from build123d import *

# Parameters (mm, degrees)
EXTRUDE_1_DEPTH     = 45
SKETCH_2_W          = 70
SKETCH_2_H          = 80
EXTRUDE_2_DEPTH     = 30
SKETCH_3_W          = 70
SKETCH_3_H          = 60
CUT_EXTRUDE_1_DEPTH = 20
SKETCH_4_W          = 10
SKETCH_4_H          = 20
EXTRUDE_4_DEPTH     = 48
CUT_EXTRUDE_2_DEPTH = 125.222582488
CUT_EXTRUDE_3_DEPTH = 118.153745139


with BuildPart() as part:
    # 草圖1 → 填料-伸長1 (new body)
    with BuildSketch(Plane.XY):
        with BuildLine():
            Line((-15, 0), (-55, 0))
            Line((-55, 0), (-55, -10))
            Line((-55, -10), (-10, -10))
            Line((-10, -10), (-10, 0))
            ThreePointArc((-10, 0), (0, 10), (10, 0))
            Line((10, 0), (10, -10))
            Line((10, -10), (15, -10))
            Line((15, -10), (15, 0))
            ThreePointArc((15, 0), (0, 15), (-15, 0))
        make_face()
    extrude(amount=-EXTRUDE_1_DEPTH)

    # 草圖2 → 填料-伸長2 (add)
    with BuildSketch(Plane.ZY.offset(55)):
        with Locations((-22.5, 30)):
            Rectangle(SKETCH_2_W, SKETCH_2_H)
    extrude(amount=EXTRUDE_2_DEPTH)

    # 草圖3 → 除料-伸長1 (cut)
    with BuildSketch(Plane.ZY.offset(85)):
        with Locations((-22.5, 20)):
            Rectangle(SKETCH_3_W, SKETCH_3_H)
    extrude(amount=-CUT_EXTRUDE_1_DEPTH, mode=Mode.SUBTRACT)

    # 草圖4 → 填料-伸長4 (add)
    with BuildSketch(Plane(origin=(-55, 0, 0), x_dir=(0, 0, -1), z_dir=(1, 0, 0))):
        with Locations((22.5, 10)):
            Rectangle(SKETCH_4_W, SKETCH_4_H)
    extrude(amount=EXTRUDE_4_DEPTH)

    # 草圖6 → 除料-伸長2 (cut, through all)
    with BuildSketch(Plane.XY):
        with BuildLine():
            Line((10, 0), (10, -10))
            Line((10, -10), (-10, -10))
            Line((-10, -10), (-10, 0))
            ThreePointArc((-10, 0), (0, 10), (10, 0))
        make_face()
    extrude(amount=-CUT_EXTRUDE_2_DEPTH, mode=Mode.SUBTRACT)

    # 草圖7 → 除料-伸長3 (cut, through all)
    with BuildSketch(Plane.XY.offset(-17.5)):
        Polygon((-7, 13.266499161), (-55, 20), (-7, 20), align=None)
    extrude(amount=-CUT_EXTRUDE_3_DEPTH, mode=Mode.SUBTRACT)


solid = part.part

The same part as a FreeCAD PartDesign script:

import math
import FreeCAD as App
import Part
import Sketcher
Q = App.Units.Quantity

doc = App.newDocument("Part")
body = doc.addObject("PartDesign::Body", "Body")

# Sketch on XY plane
sketch1 = body.newObject("Sketcher::SketchObject", "Sketch")
sketch1.AttachmentSupport = (doc.getObject("XY_Plane"), [""])
sketch1.MapMode = "FlatFace"
sketch1.addGeometry([
    Part.LineSegment(App.Vector(-15, 0, 0), App.Vector(-55, 0, 0)),  # 0
    Part.LineSegment(App.Vector(-55, 0, 0), App.Vector(-55, -10, 0)),  # 1
    Part.LineSegment(App.Vector(-55, -10, 0), App.Vector(-10, -10, 0)),  # 2
    Part.LineSegment(App.Vector(-10, -10, 0), App.Vector(-10, 0, 0)),  # 3
    Part.ArcOfCircle(Part.Circle(App.Vector(0, 0, 0), App.Vector(0, 0, 1), 10), math.radians(0), math.radians(180)),  # 4
    Part.LineSegment(App.Vector(10, 0, 0), App.Vector(10, -10, 0)),  # 5
    Part.LineSegment(App.Vector(10, -10, 0), App.Vector(15, -10, 0)),  # 6
    Part.LineSegment(App.Vector(15, -10, 0), App.Vector(15, 0, 0)),  # 7
    Part.ArcOfCircle(Part.Circle(App.Vector(0, 0, 0), App.Vector(0, 0, 1), 15), math.radians(0), math.radians(180)),  # 8
], False)
sketch1.addConstraint([
    Sketcher.Constraint("Coincident", 0, 2, 1, 1),
    Sketcher.Constraint("Coincident", 1, 2, 2, 1),
    Sketcher.Constraint("Coincident", 2, 2, 3, 1),
    Sketcher.Constraint("Tangent", 3, 2, 4, 2),
    Sketcher.Constraint("Tangent", 4, 1, 5, 1),
    Sketcher.Constraint("Coincident", 5, 2, 6, 1),
    Sketcher.Constraint("Coincident", 6, 2, 7, 1),
    Sketcher.Constraint("Tangent", 7, 2, 8, 1),
    Sketcher.Constraint("Coincident", 8, 2, 0, 1),
    Sketcher.Constraint("Horizontal", 0),
    Sketcher.Constraint("Vertical", 1),
    Sketcher.Constraint("Horizontal", 2),
    Sketcher.Constraint("Vertical", 3),
    Sketcher.Constraint("Vertical", 5),
    Sketcher.Constraint("Horizontal", 6),
    Sketcher.Constraint("Vertical", 7),
    Sketcher.Constraint("Coincident", 4, 3, -1, 1),
    Sketcher.Constraint("Coincident", 8, 3, -1, 1),
    Sketcher.Constraint("PointOnObject", 0, 2, -1),
    Sketcher.Constraint("Horizontal", 2, 2, 5, 2),
    Sketcher.Constraint("Radius", 4, Q("10 mm")),
    Sketcher.Constraint("Radius", 8, Q("15 mm")),
    Sketcher.Constraint("DistanceX", 0, 2, 0, 1, Q("40 mm")),
    Sketcher.Constraint("DistanceY", 1, 2, 1, 1, Q("10 mm")),
])
pad1 = body.newObject("PartDesign::Pad", "Pad")
pad1.Profile = sketch1
pad1.Length = 45
pad1.Reversed = True

# Sketch on YZ plane
sketch2 = body.newObject("Sketcher::SketchObject", "Sketch001")
sketch2.AttachmentSupport = (doc.getObject("YZ_Plane"), [""])
sketch2.MapMode = "FlatFace"
sketch2.AttachmentOffset = App.Placement(App.Vector(0, 0, -55), App.Rotation())
sketch2.addGeometry([
    Part.LineSegment(App.Vector(70, -57.5, 0), App.Vector(-10, -57.5, 0)),
    Part.LineSegment(App.Vector(-10, -57.5, 0), App.Vector(-10, 12.5, 0)),
    Part.LineSegment(App.Vector(-10, 12.5, 0), App.Vector(70, 12.5, 0)),
    Part.LineSegment(App.Vector(70, 12.5, 0), App.Vector(70, -57.5, 0)),
], False)
sketch2.addConstraint([
    Sketcher.Constraint("Coincident", 0, 2, 1, 1),
    Sketcher.Constraint("Coincident", 1, 2, 2, 1),
    Sketcher.Constraint("Coincident", 2, 2, 3, 1),
    Sketcher.Constraint("Coincident", 3, 2, 0, 1),
    Sketcher.Constraint("Horizontal", 0),
    Sketcher.Constraint("Vertical", 1),
    Sketcher.Constraint("Horizontal", 2),
    Sketcher.Constraint("Vertical", 3),
    Sketcher.Constraint("DistanceX", 0, 2, 0, 1, Q("80 mm")),
    Sketcher.Constraint("DistanceY", 1, 1, 1, 2, Q("70 mm")),
    Sketcher.Constraint("DistanceX", 0, 2, -1, 1, Q("10 mm")),
    Sketcher.Constraint("DistanceY", 0, 2, -1, 1, Q("57.5 mm")),
])
pad2 = body.newObject("PartDesign::Pad", "Pad001")
pad2.Profile = sketch2
pad2.Length = 30
pad2.Reversed = True

# Sketch on YZ plane
sketch3 = body.newObject("Sketcher::SketchObject", "Sketch002")
sketch3.AttachmentSupport = (doc.getObject("YZ_Plane"), [""])
sketch3.MapMode = "FlatFace"
sketch3.AttachmentOffset = App.Placement(App.Vector(0, 0, -85), App.Rotation())
sketch3.addGeometry([
    Part.LineSegment(App.Vector(50, -57.5, 0), App.Vector(-10, -57.5, 0)),
    Part.LineSegment(App.Vector(-10, -57.5, 0), App.Vector(-10, 12.5, 0)),
    Part.LineSegment(App.Vector(-10, 12.5, 0), App.Vector(50, 12.5, 0)),
    Part.LineSegment(App.Vector(50, 12.5, 0), App.Vector(50, -57.5, 0)),
], False)
sketch3.addConstraint([
    Sketcher.Constraint("Coincident", 0, 2, 1, 1),
    Sketcher.Constraint("Coincident", 1, 2, 2, 1),
    Sketcher.Constraint("Coincident", 2, 2, 3, 1),
    Sketcher.Constraint("Coincident", 3, 2, 0, 1),
    Sketcher.Constraint("Horizontal", 0),
    Sketcher.Constraint("Vertical", 1),
    Sketcher.Constraint("Horizontal", 2),
    Sketcher.Constraint("Vertical", 3),
    Sketcher.Constraint("DistanceX", 0, 2, 0, 1, Q("60 mm")),
    Sketcher.Constraint("DistanceY", 1, 1, 1, 2, Q("70 mm")),
    Sketcher.Constraint("DistanceX", 0, 2, -1, 1, Q("10 mm")),
    Sketcher.Constraint("DistanceY", 0, 2, -1, 1, Q("57.5 mm")),
])
pocket1 = body.newObject("PartDesign::Pocket", "Pocket")
pocket1.Profile = sketch3
pocket1.Length = 20
pocket1.Reversed = True

# Sketch on YZ plane
sketch4 = body.newObject("Sketcher::SketchObject", "Sketch003")
sketch4.AttachmentSupport = (doc.getObject("YZ_Plane"), [""])
sketch4.MapMode = "FlatFace"
sketch4.AttachmentOffset = App.Placement(App.Vector(0, 0, -55), App.Rotation())
sketch4.addGeometry([
    Part.LineSegment(App.Vector(20, -17.5, 0), App.Vector(0, -17.5, 0)),
    Part.LineSegment(App.Vector(0, -17.5, 0), App.Vector(0, -27.5, 0)),
    Part.LineSegment(App.Vector(0, -27.5, 0), App.Vector(20, -27.5, 0)),
    Part.LineSegment(App.Vector(20, -27.5, 0), App.Vector(20, -17.5, 0)),
], False)
sketch4.addConstraint([
    Sketcher.Constraint("Coincident", 0, 2, 1, 1),
    Sketcher.Constraint("Coincident", 1, 2, 2, 1),
    Sketcher.Constraint("Coincident", 2, 2, 3, 1),
    Sketcher.Constraint("Coincident", 3, 2, 0, 1),
    Sketcher.Constraint("Horizontal", 0),
    Sketcher.Constraint("Vertical", 1),
    Sketcher.Constraint("Horizontal", 2),
    Sketcher.Constraint("Vertical", 3),
    Sketcher.Constraint("PointOnObject", 0, 2, -2),
    Sketcher.Constraint("DistanceX", 0, 2, 0, 1, Q("20 mm")),
    Sketcher.Constraint("DistanceY", 1, 2, 1, 1, Q("10 mm")),
    Sketcher.Constraint("DistanceY", 0, 2, -1, 1, Q("17.5 mm")),
])
pad3 = body.newObject("PartDesign::Pad", "Pad002")
pad3.Profile = sketch4
pad3.Length = 48

# Sketch on XY plane
sketch5 = body.newObject("Sketcher::SketchObject", "Sketch004")
sketch5.AttachmentSupport = (doc.getObject("XY_Plane"), [""])
sketch5.MapMode = "FlatFace"
sketch5.addGeometry([
    Part.LineSegment(App.Vector(10, -10, 0), App.Vector(10, 0, 0)),
    Part.ArcOfCircle(Part.Circle(App.Vector(0, 0, 0), App.Vector(0, 0, 1), 10), math.radians(0), math.radians(180)),
    Part.LineSegment(App.Vector(-10, 0, 0), App.Vector(-10, -10, 0)),
    Part.LineSegment(App.Vector(-10, -10, 0), App.Vector(10, -10, 0)),
], False)
sketch5.addConstraint([
    Sketcher.Constraint("Tangent", 0, 2, 1, 1),
    Sketcher.Constraint("Tangent", 1, 2, 2, 1),
    Sketcher.Constraint("Coincident", 2, 2, 3, 1),
    Sketcher.Constraint("Coincident", 3, 2, 0, 1),
    Sketcher.Constraint("Vertical", 0),
    Sketcher.Constraint("Vertical", 2),
    Sketcher.Constraint("Horizontal", 3),
    Sketcher.Constraint("Coincident", 1, 3, -1, 1),
    Sketcher.Constraint("Radius", 1, Q("10 mm")),
    Sketcher.Constraint("DistanceY", 0, 1, 0, 2, Q("10 mm")),
])
pocket2 = body.newObject("PartDesign::Pocket", "Pocket001")
pocket2.Profile = sketch5
pocket2.Type = "ThroughAll"

# Sketch on XY plane
sketch6 = body.newObject("Sketcher::SketchObject", "Sketch005")
sketch6.AttachmentSupport = (doc.getObject("XY_Plane"), [""])
sketch6.MapMode = "FlatFace"
sketch6.AttachmentOffset = App.Placement(App.Vector(0, 0, -17.5), App.Rotation())
sketch6.addGeometry([
    Part.LineSegment(App.Vector(-55, 20, 0), App.Vector(-7, 13.266499, 0)),
    Part.LineSegment(App.Vector(-7, 13.266499, 0), App.Vector(-7, 20, 0)),
    Part.LineSegment(App.Vector(-7, 20, 0), App.Vector(-55, 20, 0)),
], False)
sketch6.addConstraint([
    Sketcher.Constraint("Coincident", 0, 2, 1, 1),
    Sketcher.Constraint("Coincident", 1, 2, 2, 1),
    Sketcher.Constraint("Coincident", 2, 2, 0, 1),
    Sketcher.Constraint("Vertical", 1),
    Sketcher.Constraint("Horizontal", 2),
    Sketcher.Constraint("DistanceX", 2, 2, 2, 1, Q("48 mm")),
    Sketcher.Constraint("DistanceX", 0, 2, -1, 1, Q("7 mm")),
    Sketcher.Constraint("DistanceY", -1, 1, 1, 2, Q("20 mm")),
    Sketcher.Constraint("DistanceY", 1, 1, 1, 2, Q("6.733501 mm")),
])
pocket3 = body.newObject("PartDesign::Pocket", "Pocket002")
pocket3.Profile = sketch6
pocket3.Type = "ThroughAll"

doc.recompute()
